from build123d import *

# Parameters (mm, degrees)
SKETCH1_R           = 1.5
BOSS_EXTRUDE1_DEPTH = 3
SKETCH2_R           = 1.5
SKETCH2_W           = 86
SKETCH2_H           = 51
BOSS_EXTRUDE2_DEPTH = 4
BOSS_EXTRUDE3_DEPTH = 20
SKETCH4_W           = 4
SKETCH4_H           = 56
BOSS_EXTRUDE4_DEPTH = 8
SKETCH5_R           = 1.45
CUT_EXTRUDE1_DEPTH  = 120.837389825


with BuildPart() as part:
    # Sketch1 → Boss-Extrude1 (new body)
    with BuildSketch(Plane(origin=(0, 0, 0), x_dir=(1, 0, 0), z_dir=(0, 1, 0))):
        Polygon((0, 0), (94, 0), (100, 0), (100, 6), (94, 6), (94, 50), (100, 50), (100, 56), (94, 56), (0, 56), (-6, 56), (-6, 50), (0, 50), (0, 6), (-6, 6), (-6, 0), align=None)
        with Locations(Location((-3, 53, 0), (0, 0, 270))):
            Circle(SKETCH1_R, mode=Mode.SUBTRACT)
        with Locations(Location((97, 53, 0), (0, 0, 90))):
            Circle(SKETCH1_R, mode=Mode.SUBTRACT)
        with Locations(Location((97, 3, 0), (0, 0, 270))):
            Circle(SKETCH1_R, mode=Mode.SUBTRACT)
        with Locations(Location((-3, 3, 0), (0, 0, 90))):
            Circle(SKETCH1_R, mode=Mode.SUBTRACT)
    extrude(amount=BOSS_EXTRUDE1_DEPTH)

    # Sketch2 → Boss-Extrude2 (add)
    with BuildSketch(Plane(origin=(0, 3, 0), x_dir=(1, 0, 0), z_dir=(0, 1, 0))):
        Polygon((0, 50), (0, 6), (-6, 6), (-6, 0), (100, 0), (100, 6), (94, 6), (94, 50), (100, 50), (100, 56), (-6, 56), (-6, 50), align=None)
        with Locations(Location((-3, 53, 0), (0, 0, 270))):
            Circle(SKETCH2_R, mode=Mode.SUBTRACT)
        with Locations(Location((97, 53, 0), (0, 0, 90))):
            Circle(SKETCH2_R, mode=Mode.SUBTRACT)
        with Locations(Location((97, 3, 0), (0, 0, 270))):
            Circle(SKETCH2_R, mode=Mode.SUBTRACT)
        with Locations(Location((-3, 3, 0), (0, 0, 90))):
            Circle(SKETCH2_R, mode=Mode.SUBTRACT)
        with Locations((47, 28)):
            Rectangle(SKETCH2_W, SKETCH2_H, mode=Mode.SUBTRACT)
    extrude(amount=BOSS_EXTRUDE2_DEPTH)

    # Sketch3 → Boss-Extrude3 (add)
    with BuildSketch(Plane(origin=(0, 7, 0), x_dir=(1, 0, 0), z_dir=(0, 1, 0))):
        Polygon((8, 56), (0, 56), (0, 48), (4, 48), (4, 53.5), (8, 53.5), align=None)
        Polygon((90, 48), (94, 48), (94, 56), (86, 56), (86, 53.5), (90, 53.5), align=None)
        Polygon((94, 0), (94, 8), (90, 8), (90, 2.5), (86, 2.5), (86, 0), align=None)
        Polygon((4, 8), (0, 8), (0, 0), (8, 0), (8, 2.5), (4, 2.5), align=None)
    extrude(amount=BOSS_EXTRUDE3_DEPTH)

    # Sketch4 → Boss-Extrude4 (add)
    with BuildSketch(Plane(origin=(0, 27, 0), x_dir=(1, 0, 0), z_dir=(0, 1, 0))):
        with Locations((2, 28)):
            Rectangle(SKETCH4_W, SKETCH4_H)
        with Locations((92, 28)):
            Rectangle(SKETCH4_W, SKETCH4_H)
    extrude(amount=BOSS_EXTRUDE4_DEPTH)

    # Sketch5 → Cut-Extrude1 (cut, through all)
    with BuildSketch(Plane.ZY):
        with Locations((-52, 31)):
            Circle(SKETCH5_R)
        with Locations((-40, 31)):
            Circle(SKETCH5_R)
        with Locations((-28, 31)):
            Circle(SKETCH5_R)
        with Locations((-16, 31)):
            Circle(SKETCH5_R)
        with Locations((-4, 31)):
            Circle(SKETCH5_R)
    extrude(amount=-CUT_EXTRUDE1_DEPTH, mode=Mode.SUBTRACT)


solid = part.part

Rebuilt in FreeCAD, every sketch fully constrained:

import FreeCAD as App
import Part
import Sketcher


def add_polygon(sketch, points):
    """Adds a closed chain of lines whose ends are joined by coincident constraints."""
    first, n = sketch.GeometryCount, len(points)
    for a, b in zip(points, points[1:] + points[:1]):
        sketch.addGeometry(Part.LineSegment(App.Vector(*a, 0), App.Vector(*b, 0)), False)
    for i in range(n):
        sketch.addConstraint(Sketcher.Constraint("Coincident", first + i, 2, first + (i + 1) % n, 1))

doc = App.newDocument("Part")
body = doc.addObject("PartDesign::Body", "Body")

# Sketch on XZ plane
sketch1 = body.newObject("Sketcher::SketchObject", "Sketch")
sketch1.AttachmentSupport = (doc.getObject("XZ_Plane"), [""])
sketch1.MapMode = "FlatFace"
add_polygon(sketch1, [(100, 0), (100, -6), (94, -6), (94, -50), (100, -50), (100, -56), (-6, -56), (-6, -50), (0, -50), (0, -6), (-6, -6), (-6, 0)])  # lines 0-11
sketch1.addGeometry(Part.Circle(App.Vector(-3, -3, 0), App.Vector(0, 0, 1), 1.5), False)  # 12
sketch1.addGeometry(Part.Circle(App.Vector(97, -3, 0), App.Vector(0, 0, 1), 1.5), False)  # 13
sketch1.addGeometry(Part.Circle(App.Vector(-3, -53, 0), App.Vector(0, 0, 1), 1.5), False)  # 14
sketch1.addGeometry(Part.Circle(App.Vector(97, -53, 0), App.Vector(0, 0, 1), 1.5), False)  # 15
sketch1.addConstraint(Sketcher.Constraint("Vertical", 0))
sketch1.addConstraint(Sketcher.Constraint("Horizontal", 1))
sketch1.addConstraint(Sketcher.Constraint("Vertical", 2))
sketch1.addConstraint(Sketcher.Constraint("Horizontal", 3))
sketch1.addConstraint(Sketcher.Constraint("Vertical", 4))
sketch1.addConstraint(Sketcher.Constraint("Horizontal", 5))
sketch1.addConstraint(Sketcher.Constraint("Vertical", 6))
sketch1.addConstraint(Sketcher.Constraint("Horizontal", 7))
sketch1.addConstraint(Sketcher.Constraint("Vertical", 8))
sketch1.addConstraint(Sketcher.Constraint("Horizontal", 9))
sketch1.addConstraint(Sketcher.Constraint("Vertical", 10))
sketch1.addConstraint(Sketcher.Constraint("Horizontal", 11))
sketch1.addConstraint(Sketcher.Constraint("Equal", 12, 13))
sketch1.addConstraint(Sketcher.Constraint("Equal", 13, 14))
sketch1.addConstraint(Sketcher.Constraint("Equal", 14, 15))
sketch1.addConstraint(Sketcher.Constraint("PointOnObject", 7, 2, -2))
sketch1.addConstraint(Sketcher.Constraint("PointOnObject", 10, 2, -1))
sketch1.addConstraint(Sketcher.Constraint("Horizontal", 12, 3, 13, 3))
sketch1.addConstraint(Sketcher.Constraint("Horizontal", 14, 3, 15, 3))
sketch1.addConstraint(Sketcher.Constraint("Horizontal", 3, 2, 6, 2))
sketch1.addConstraint(Sketcher.Constraint("Horizontal", 1, 2, 8, 2))
sketch1.addConstraint(Sketcher.Constraint("Vertical", 12, 3, 14, 3))
sketch1.addConstraint(Sketcher.Constraint("Vertical", 13, 3, 15, 3))
sketch1.addConstraint(Sketcher.Constraint("Vertical", 0, 2, 3, 2))
sketch1.addConstraint(Sketcher.Constraint("Vertical", 6, 2, 9, 2))
sketch1.addConstraint(Sketcher.Constraint("Equal", 3, 7))
sketch1.addConstraint(Sketcher.Constraint("Equal", 9, 0))
sketch1.addConstraint(Sketcher.Constraint("Equal", 0, 4))
sketch1.addConstraint(Sketcher.Constraint("Diameter", 12, 3.0))
sketch1.addConstraint(Sketcher.Constraint("DistanceX", 1, 2, 1, 1, 6.0))
sketch1.addConstraint(Sketcher.Constraint("DistanceX", 5, 2, 5, 1, 106.0))
sketch1.addConstraint(Sketcher.Constraint("DistanceY", 2, 2, 2, 1, 44.0))
sketch1.addConstraint(Sketcher.Constraint("DistanceX", 12, 3, -1, 1, 3.0))
sketch1.addConstraint(Sketcher.Constraint("DistanceY", 12, 3, -1, 1, 3.0))
sketch1.addConstraint(Sketcher.Constraint("DistanceX", -1, 1, 13, 3, 97.0))
sketch1.addConstraint(Sketcher.Constraint("DistanceY", 14, 3, -1, 1, 53.0))
pad1 = body.newObject("PartDesign::Pad", "Pad")
pad1.Profile = sketch1
pad1.Length = 3
pad1.Reversed = True

# Sketch on XZ plane
sketch2 = body.newObject("Sketcher::SketchObject", "Sketch001")
sketch2.AttachmentSupport = (doc.getObject("XZ_Plane"), [""])
sketch2.MapMode = "FlatFace"
sketch2.AttachmentOffset = App.Placement(App.Vector(0, 0, -3), App.Rotation())
add_polygon(sketch2, [(0, -50), (0, -6), (-6, -6), (-6, 0), (100, 0), (100, -6), (94, -6), (94, -50), (100, -50), (100, -56), (-6, -56), (-6, -50)])  # lines 0-11
sketch2.addGeometry(Part.Circle(App.Vector(-3, -3, 0), App.Vector(0, 0, 1), 1.5), False)  # 12
sketch2.addGeometry(Part.Circle(App.Vector(97, -3, 0), App.Vector(0, 0, 1), 1.5), False)  # 13
add_polygon(sketch2, [(90, -2.5), (4, -2.5), (4, -53.5), (90, -53.5)])  # lines 14-17
sketch2.addGeometry(Part.Circle(App.Vector(-3, -53, 0), App.Vector(0, 0, 1), 1.5), False)  # 18
sketch2.addGeometry(Part.Circle(App.Vector(97, -53, 0), App.Vector(0, 0, 1), 1.5), False)  # 19
sketch2.addConstraint(Sketcher.Constraint("Vertical", 0))
sketch2.addConstraint(Sketcher.Constraint("Horizontal", 1))
sketch2.addConstraint(Sketcher.Constraint("Vertical", 2))
sketch2.addConstraint(Sketcher.Constraint("Horizontal", 3))
sketch2.addConstraint(Sketcher.Constraint("Vertical", 4))
sketch2.addConstraint(Sketcher.Constraint("Horizontal", 5))
sketch2.addConstraint(Sketcher.Constraint("Vertical", 6))
sketch2.addConstraint(Sketcher.Constraint("Horizontal", 7))
sketch2.addConstraint(Sketcher.Constraint("Vertical", 8))
sketch2.addConstraint(Sketcher.Constraint("Horizontal", 9))
sketch2.addConstraint(Sketcher.Constraint("Vertical", 10))
sketch2.addConstraint(Sketcher.Constraint("Horizontal", 11))
sketch2.addConstraint(Sketcher.Constraint("Horizontal", 14))
sketch2.addConstraint(Sketcher.Constraint("Vertical", 15))
sketch2.addConstraint(Sketcher.Constraint("Horizontal", 16))
sketch2.addConstraint(Sketcher.Constraint("Vertical", 17))
sketch2.addConstraint(Sketcher.Constraint("Equal", 12, 13))
sketch2.addConstraint(Sketcher.Constraint("Equal", 13, 18))
sketch2.addConstraint(Sketcher.Constraint("Equal", 18, 19))
sketch2.addConstraint(Sketcher.Constraint("PointOnObject", 0, 2, -2))
sketch2.addConstraint(Sketcher.Constraint("PointOnObject", 2, 2, -1))
sketch2.addConstraint(Sketcher.Constraint("Horizontal", 12, 3, 13, 3))
sketch2.addConstraint(Sketcher.Constraint("Horizontal", 18, 3, 19, 3))
sketch2.addConstraint(Sketcher.Constraint("Horizontal", 1, 2, 4, 2))
sketch2.addConstraint(Sketcher.Constraint("Horizontal", 7, 2, 10, 2))
sketch2.addConstraint(Sketcher.Constraint("Vertical", 12, 3, 18, 3))
sketch2.addConstraint(Sketcher.Constraint("Vertical", 13, 3, 19, 3))
sketch2.addConstraint(Sketcher.Constraint("Vertical", 4, 2, 7, 2))
sketch2.addConstraint(Sketcher.Constraint("Vertical", 2, 2, 9, 2))
sketch2.addConstraint(Sketcher.Constraint("Equal", 1, 5))
sketch2.addConstraint(Sketcher.Constraint("Equal", 11, 2))
sketch2.addConstraint(Sketcher.Constraint("Equal", 4, 8))
sketch2.addConstraint(Sketcher.Constraint("Diameter", 12, 3.0))
sketch2.addConstraint(Sketcher.Constraint("DistanceX", 1, 2, 1, 1, 6.0))
sketch2.addConstraint(Sketcher.Constraint("DistanceX", 3, 1, 3, 2, 106.0))
sketch2.addConstraint(Sketcher.Constraint("DistanceX", 14, 2, 14, 1, 86.0))
sketch2.addConstraint(Sketcher.Constraint("DistanceY", 0, 1, 0, 2, 44.0))
sketch2.addConstraint(Sketcher.Constraint("DistanceY", 15, 2, 15, 1, 51.0))
sketch2.addConstraint(Sketcher.Constraint("DistanceX", 12, 3, -1, 1, 3.0))
sketch2.addConstraint(Sketcher.Constraint("DistanceY", 12, 3, -1, 1, 3.0))
sketch2.addConstraint(Sketcher.Constraint("DistanceX", -1, 1, 13, 3, 97.0))
sketch2.addConstraint(Sketcher.Constraint("DistanceY", 18, 3, -1, 1, 53.0))
sketch2.addConstraint(Sketcher.Constraint("DistanceX", -1, 1, 14, 2, 4.0))
sketch2.addConstraint(Sketcher.Constraint("DistanceY", 14, 2, -1, 1, 2.5))
pad2 = body.newObject("PartDesign::Pad", "Pad001")
pad2.Profile = sketch2
pad2.Length = 4
pad2.Reversed = True

# Sketch on XZ plane
sketch3 = body.newObject("Sketcher::SketchObject", "Sketch002")
sketch3.AttachmentSupport = (doc.getObject("XZ_Plane"), [""])
sketch3.MapMode = "FlatFace"
sketch3.AttachmentOffset = App.Placement(App.Vector(0, 0, -7), App.Rotation())
add_polygon(sketch3, [(8, -56), (0, -56), (0, -48), (4, -48), (4, -53.5), (8, -53.5)])  # lines 0-5
add_polygon(sketch3, [(90, -48), (94, -48), (94, -56), (86, -56), (86, -53.5), (90, -53.5)])  # lines 6-11
add_polygon(sketch3, [(94, 0), (94, -8), (90, -8), (90, -2.5), (86, -2.5), (86, 0)])  # lines 12-17
add_polygon(sketch3, [(4, -8), (0, -8), (0, 0), (8, 0), (8, -2.5), (4, -2.5)])  # lines 18-23
sketch3.addConstraint(Sketcher.Constraint("Horizontal", 0))
sketch3.addConstraint(Sketcher.Constraint("Vertical", 1))
sketch3.addConstraint(Sketcher.Constraint("Horizontal", 2))
sketch3.addConstraint(Sketcher.Constraint("Vertical", 3))
sketch3.addConstraint(Sketcher.Constraint("Horizontal", 4))
sketch3.addConstraint(Sketcher.Constraint("Vertical", 5))
sketch3.addConstraint(Sketcher.Constraint("Horizontal", 6))
sketch3.addConstraint(Sketcher.Constraint("Vertical", 7))
sketch3.addConstraint(Sketcher.Constraint("Horizontal", 8))
sketch3.addConstraint(Sketcher.Constraint("Vertical", 9))
sketch3.addConstraint(Sketcher.Constraint("Horizontal", 10))
sketch3.addConstraint(Sketcher.Constraint("Vertical", 11))
sketch3.addConstraint(Sketcher.Constraint("Vertical", 12))
sketch3.addConstraint(Sketcher.Constraint("Horizontal", 13))
sketch3.addConstraint(Sketcher.Constraint("Vertical", 14))
sketch3.addConstraint(Sketcher.Constraint("Horizontal", 15))
sketch3.addConstraint(Sketcher.Constraint("Vertical", 16))
sketch3.addConstraint(Sketcher.Constraint("Horizontal", 17))
sketch3.addConstraint(Sketcher.Constraint("Horizontal", 18))
sketch3.addConstraint(Sketcher.Constraint("Vertical", 19))
sketch3.addConstraint(Sketcher.Constraint("Horizontal", 20))
sketch3.addConstraint(Sketcher.Constraint("Vertical", 21))
sketch3.addConstraint(Sketcher.Constraint("Horizontal", 22))
sketch3.addConstraint(Sketcher.Constraint("Vertical", 23))
sketch3.addConstraint(Sketcher.Constraint("Coincident", 19, 2, -1, 1))
sketch3.addConstraint(Sketcher.Constraint("PointOnObject", 0, 2, -2))
sketch3.addConstraint(Sketcher.Constraint("PointOnObject", 16, 2, -1))
sketch3.addConstraint(Sketcher.Constraint("Horizontal", 2, 2, 6, 2))
sketch3.addConstraint(Sketcher.Constraint("Horizontal", 5, 2, 7, 2))
sketch3.addConstraint(Sketcher.Constraint("Horizontal", 4, 2, 9, 2))
sketch3.addConstraint(Sketcher.Constraint("Horizontal", 13, 2, 18, 2))
sketch3.addConstraint(Sketcher.Constraint("Horizontal", 15, 2, 21, 2))
sketch3.addConstraint(Sketcher.Constraint("Vertical", 7, 2, 12, 2))
sketch3.addConstraint(Sketcher.Constraint("Vertical", 11, 2, 13, 2))
sketch3.addConstraint(Sketcher.Constraint("Vertical", 9, 2, 15, 2))
sketch3.addConstraint(Sketcher.Constraint("Vertical", 5, 2, 20, 2))
sketch3.addConstraint(Sketcher.Constraint("Vertical", 3, 2, 22, 2))
sketch3.addConstraint(Sketcher.Constraint("Equal", 2, 4))
sketch3.addConstraint(Sketcher.Constraint("Equal", 4, 6))
sketch3.addConstraint(Sketcher.Constraint("Equal", 0, 8))
sketch3.addConstraint(Sketcher.Constraint("Equal", 20, 1))
sketch3.addConstraint(Sketcher.Constraint("Equal", 7, 12))
sketch3.addConstraint(Sketcher.Constraint("Equal", 11, 14))
sketch3.addConstraint(Sketcher.Constraint("DistanceX", 0, 2, 0, 1, 8.0))
sketch3.addConstraint(Sketcher.Constraint("DistanceY", 3, 2, 3, 1, 5.5))
sketch3.addConstraint(Sketcher.Constraint("DistanceY", 0, 2, -1, 1, 56.0))
sketch3.addConstraint(Sketcher.Constraint("DistanceX", -1, 1, 6, 2, 94.0))
pad3 = body.newObject("PartDesign::Pad", "Pad002")
pad3.Profile = sketch3
pad3.Length = 20
pad3.Reversed = True

# Sketch on XZ plane
sketch4 = body.newObject("Sketcher::SketchObject", "Sketch003")
sketch4.AttachmentSupport = (doc.getObject("XZ_Plane"), [""])
sketch4.MapMode = "FlatFace"
sketch4.AttachmentOffset = App.Placement(App.Vector(0, 0, -27), App.Rotation())
add_polygon(sketch4, [(0, -56), (0, 0), (4, 0), (4, -56)])  # lines 0-3
add_polygon(sketch4, [(90, -56), (90, 0), (94, 0), (94, -56)])  # lines 4-7
sketch4.addConstraint(Sketcher.Constraint("Vertical", 0))
sketch4.addConstraint(Sketcher.Constraint("Horizontal", 1))
sketch4.addConstraint(Sketcher.Constraint("Vertical", 2))
sketch4.addConstraint(Sketcher.Constraint("Horizontal", 3))
sketch4.addConstraint(Sketcher.Constraint("Vertical", 4))
sketch4.addConstraint(Sketcher.Constraint("Horizontal", 5))
sketch4.addConstraint(Sketcher.Constraint("Vertical", 6))
sketch4.addConstraint(Sketcher.Constraint("Horizontal", 7))
sketch4.addConstraint(Sketcher.Constraint("Coincident", 0, 2, -1, 1))
sketch4.addConstraint(Sketcher.Constraint("PointOnObject", 4, 2, -1))
sketch4.addConstraint(Sketcher.Constraint("Horizontal", 3, 2, 6, 2))
sketch4.addConstraint(Sketcher.Constraint("Equal", 3, 5))
sketch4.addConstraint(Sketcher.Constraint("DistanceX", 1, 1, 1, 2, 4.0))
sketch4.addConstraint(Sketcher.Constraint("DistanceY", 0, 1, 0, 2, 56.0))
sketch4.addConstraint(Sketcher.Constraint("DistanceX", -1, 1, 4, 2, 90.0))
pad4 = body.newObject("PartDesign::Pad", "Pad003")
pad4.Profile = sketch4
pad4.Length = 8
pad4.Reversed = True

# Sketch on YZ plane
sketch5 = body.newObject("Sketcher::SketchObject", "Sketch004")
sketch5.AttachmentSupport = (doc.getObject("YZ_Plane"), [""])
sketch5.MapMode = "FlatFace"
sketch5.addGeometry(Part.Circle(App.Vector(31, -52, 0), App.Vector(0, 0, 1), 1.4), False)
sketch5.addGeometry(Part.Circle(App.Vector(31, -40, 0), App.Vector(0, 0, 1), 1.4), False)
sketch5.addGeometry(Part.Circle(App.Vector(31, -28, 0), App.Vector(0, 0, 1), 1.4), False)
sketch5.addGeometry(Part.Circle(App.Vector(31, -16, 0), App.Vector(0, 0, 1), 1.4), False)
sketch5.addGeometry(Part.Circle(App.Vector(31, -4, 0), App.Vector(0, 0, 1), 1.4), False)
sketch5.addConstraint(Sketcher.Constraint("Equal", 0, 1))
sketch5.addConstraint(Sketcher.Constraint("Equal", 1, 2))
sketch5.addConstraint(Sketcher.Constraint("Equal", 2, 3))
sketch5.addConstraint(Sketcher.Constraint("Equal", 3, 4))
sketch5.addConstraint(Sketcher.Constraint("Vertical", 0, 3, 1, 3))
sketch5.addConstraint(Sketcher.Constraint("Vertical", 1, 3, 2, 3))
sketch5.addConstraint(Sketcher.Constraint("Vertical", 2, 3, 3, 3))
sketch5.addConstraint(Sketcher.Constraint("Vertical", 3, 3, 4, 3))
sketch5.addConstraint(Sketcher.Constraint("Diameter", 0, 2.9))
sketch5.addConstraint(Sketcher.Constraint("DistanceX", -1, 1, 0, 3, 31.0))
sketch5.addConstraint(Sketcher.Constraint("DistanceY", 0, 3, -1, 1, 52.0))
sketch5.addConstraint(Sketcher.Constraint("DistanceY", 1, 3, -1, 1, 40.0))
sketch5.addConstraint(Sketcher.Constraint("DistanceY", 2, 3, -1, 1, 28.0))
sketch5.addConstraint(Sketcher.Constraint("DistanceY", 3, 3, -1, 1, 16.0))
sketch5.addConstraint(Sketcher.Constraint("DistanceY", 4, 3, -1, 1, 4.0))
pocket1 = body.newObject("PartDesign::Pocket", "Pocket")
pocket1.Profile = sketch5
pocket1.Type = "ThroughAll"
pocket1.Reversed = True

doc.recompute()
